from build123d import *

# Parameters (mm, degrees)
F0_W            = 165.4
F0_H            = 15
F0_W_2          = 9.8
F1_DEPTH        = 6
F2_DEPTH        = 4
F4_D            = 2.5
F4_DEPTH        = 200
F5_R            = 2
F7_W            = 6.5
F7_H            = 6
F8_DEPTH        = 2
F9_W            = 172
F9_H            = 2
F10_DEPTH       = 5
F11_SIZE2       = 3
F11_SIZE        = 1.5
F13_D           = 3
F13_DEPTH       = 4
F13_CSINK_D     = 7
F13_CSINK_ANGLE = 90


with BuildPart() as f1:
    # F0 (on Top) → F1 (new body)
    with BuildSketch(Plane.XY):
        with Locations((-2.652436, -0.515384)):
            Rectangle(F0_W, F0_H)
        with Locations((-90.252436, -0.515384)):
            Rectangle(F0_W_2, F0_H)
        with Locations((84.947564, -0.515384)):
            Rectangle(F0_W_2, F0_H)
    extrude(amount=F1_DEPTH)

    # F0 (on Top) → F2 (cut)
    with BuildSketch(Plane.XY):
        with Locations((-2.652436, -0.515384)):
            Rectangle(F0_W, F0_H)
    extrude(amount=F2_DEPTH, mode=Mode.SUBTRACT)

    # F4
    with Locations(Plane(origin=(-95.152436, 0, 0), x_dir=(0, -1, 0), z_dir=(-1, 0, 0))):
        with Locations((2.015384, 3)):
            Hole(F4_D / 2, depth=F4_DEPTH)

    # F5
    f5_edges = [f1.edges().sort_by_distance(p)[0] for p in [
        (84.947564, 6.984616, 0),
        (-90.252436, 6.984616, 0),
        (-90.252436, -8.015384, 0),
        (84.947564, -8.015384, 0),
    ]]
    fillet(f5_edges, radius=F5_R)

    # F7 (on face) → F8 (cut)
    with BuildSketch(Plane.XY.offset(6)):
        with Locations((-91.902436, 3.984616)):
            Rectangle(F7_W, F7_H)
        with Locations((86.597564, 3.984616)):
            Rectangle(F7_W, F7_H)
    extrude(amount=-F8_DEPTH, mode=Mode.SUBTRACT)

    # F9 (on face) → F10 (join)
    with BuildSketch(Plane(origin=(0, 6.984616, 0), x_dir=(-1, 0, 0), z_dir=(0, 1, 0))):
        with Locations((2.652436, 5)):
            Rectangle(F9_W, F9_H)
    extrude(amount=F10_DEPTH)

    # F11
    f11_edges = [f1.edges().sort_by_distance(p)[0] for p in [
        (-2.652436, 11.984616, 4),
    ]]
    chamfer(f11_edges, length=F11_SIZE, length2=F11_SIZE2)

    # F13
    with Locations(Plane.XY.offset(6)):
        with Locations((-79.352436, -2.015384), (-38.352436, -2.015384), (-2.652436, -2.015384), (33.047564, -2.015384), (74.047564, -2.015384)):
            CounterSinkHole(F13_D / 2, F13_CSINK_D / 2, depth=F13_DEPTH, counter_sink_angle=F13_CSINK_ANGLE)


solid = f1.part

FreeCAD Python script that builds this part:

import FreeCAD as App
import Part
import Sketcher
from FreeCAD import Vector
Q = App.Units.Quantity


def edges_at(feature, points):
    """Names of the edges that pass closest to the given points."""
    edges = feature.Shape.Edges
    near = lambda p: min(range(len(edges)), key=lambda i: edges[i].distToShape(Part.Vertex(*p))[0])
    return sorted({f"Edge{near(p) + 1}" for p in points})


def add_polygon(sketch, points):
    """Adds a closed chain of lines whose ends are joined by coincident constraints."""
    first, n = sketch.GeometryCount, len(points)
    for a, b in zip(points, points[1:] + points[:1]):
        sketch.addGeometry(Part.LineSegment(App.Vector(*a, 0), App.Vector(*b, 0)), False)
    for i in range(n):
        sketch.addConstraint(Sketcher.Constraint("Coincident", first + i, 2, first + (i + 1) % n, 1))

doc = App.newDocument("Part")
body = doc.addObject("PartDesign::Body", "Body")

sketch1 = doc.addObject("Sketcher::SketchObject", "Sketch")
body.addObject(sketch1)
sketch1.AttachmentSupport = (doc.XY_Plane, [""])
sketch1.MapMode = "FlatFace"
add_polygon(sketch1, [(-95, 7), (-95, -8), (90, -8), (90, 7)])
sketch1.addConstraint(Sketcher.Constraint("Vertical", 0))
sketch1.addConstraint(Sketcher.Constraint("Horizontal", 1))
sketch1.addConstraint(Sketcher.Constraint("Vertical", 2))
sketch1.addConstraint(Sketcher.Constraint("Horizontal", 3))
sketch1.addConstraint(Sketcher.Constraint("DistanceX", 1, 1, 1, 2, Q("185 mm")))
sketch1.addConstraint(Sketcher.Constraint("DistanceY", 0, 2, 0, 1, Q("15 mm")))
sketch1.addConstraint(Sketcher.Constraint("DistanceX", 0, 2, -1, 1, Q("95.152436 mm")))
sketch1.addConstraint(Sketcher.Constraint("DistanceY", 0, 2, -1, 1, Q("8.015384 mm")))
pad1 = doc.addObject("PartDesign::Pad", "Pad")
body.addObject(pad1)
pad1.Profile = sketch1
pad1.Length = 6

sketch2 = doc.addObject("Sketcher::SketchObject", "Sketch001")
body.addObject(sketch2)
sketch2.AttachmentSupport = (doc.XY_Plane, [""])
sketch2.MapMode = "FlatFace"
add_polygon(sketch2, [(-85, 7), (-85, -8), (80, -8), (80, 7)])
sketch2.addConstraint(Sketcher.Constraint("Vertical", 0))
sketch2.addConstraint(Sketcher.Constraint("Horizontal", 1))
sketch2.addConstraint(Sketcher.Constraint("Vertical", 2))
sketch2.addConstraint(Sketcher.Constraint("Horizontal", 3))
sketch2.addConstraint(Sketcher.Constraint("DistanceY", 0, 2, 0, 1, Q("15 mm")))
sketch2.addConstraint(Sketcher.Constraint("DistanceX", 1, 1, 1, 2, Q("165.4 mm")))
sketch2.addConstraint(Sketcher.Constraint("DistanceX", 0, 2, -1, 1, Q("85.352436 mm")))
sketch2.addConstraint(Sketcher.Constraint("DistanceY", 0, 2, -1, 1, Q("8.015384 mm")))
pocket1 = doc.addObject("PartDesign::Pocket", "Pocket")
body.addObject(pocket1)
pocket1.Profile = sketch2
pocket1.Length = 4
pocket1.Reversed = True

sketch3 = doc.addObject("Sketcher::SketchObject", "Sketch002")
body.addObject(sketch3)
sketch3.AttachmentSupport = (doc.YZ_Plane, [""])
sketch3.MapMode = "FlatFace"
sketch3.AttachmentOffset = App.Placement(Vector(0, 0, -95.152436), App.Rotation())
sketch3.addGeometry(Part.Circle(Vector(-2, 3, 0), Vector(0, 0, 1), 1.2), False)
sketch3.addConstraint(Sketcher.Constraint("Diameter", 0, Q("2.5 mm")))
sketch3.addConstraint(Sketcher.Constraint("DistanceY", -1, 1, 0, 3, Q("3 mm")))
sketch3.addConstraint(Sketcher.Constraint("DistanceX", 0, 3, -1, 1, Q("2.015384 mm")))
doc.recompute()
hole = doc.addObject("PartDesign::Hole", "Hole")
body.addObject(hole)
hole.Profile = sketch3
hole.ThreadType = "None"
hole.Diameter = 2.5
hole.DepthType = "Dimension"
hole.Depth = 200
hole.DrillPoint = "Flat"
hole.Reversed = True
doc.recompute()

fillet = doc.addObject("PartDesign::Fillet", "Fillet")
body.addObject(fillet)
fillet.Base = (hole, edges_at(hole, [
    (84.948, 6.985, 0),
    (-90.252, 6.985, 0),
    (-90.252, -8.015, 0),
    (84.948, -8.015, 0),
]))
fillet.Radius = 2

sketch4 = doc.addObject("Sketcher::SketchObject", "Sketch003")
body.addObject(sketch4)
sketch4.AttachmentSupport = (doc.XY_Plane, [""])
sketch4.MapMode = "FlatFace"
sketch4.AttachmentOffset = App.Placement(Vector(0, 0, 6), App.Rotation())
add_polygon(sketch4, [(-95, 7), (-95, 1), (-89, 1), (-89, 7)])
add_polygon(sketch4, [(83, 7), (83, 1), (90, 1), (90, 7)])
sketch4.addConstraint(Sketcher.Constraint("Vertical", 0))
sketch4.addConstraint(Sketcher.Constraint("Horizontal", 1))
sketch4.addConstraint(Sketcher.Constraint("Vertical", 2))
sketch4.addConstraint(Sketcher.Constraint("Horizontal", 3))
sketch4.addConstraint(Sketcher.Constraint("Vertical", 4))
sketch4.addConstraint(Sketcher.Constraint("Horizontal", 5))
sketch4.addConstraint(Sketcher.Constraint("Vertical", 6))
sketch4.addConstraint(Sketcher.Constraint("Horizontal", 7))
sketch4.addConstraint(Sketcher.Constraint("Horizontal", 1, 2, 4, 2))
sketch4.addConstraint(Sketcher.Constraint("Horizontal", 3, 2, 6, 2))
sketch4.addConstraint(Sketcher.Constraint("Equal", 3, 5))
sketch4.addConstraint(Sketcher.Constraint("DistanceY", 0, 2, 0, 1, Q("6 mm")))
sketch4.addConstraint(Sketcher.Constraint("DistanceX", 1, 1, 1, 2, Q("6.5 mm")))
sketch4.addConstraint(Sketcher.Constraint("DistanceX", 1, 2, 4, 2, Q("172 mm")))
sketch4.addConstraint(Sketcher.Constraint("DistanceX", 0, 2, -1, 1, Q("95.152436 mm")))
sketch4.addConstraint(Sketcher.Constraint("DistanceY", -1, 1, 0, 2, Q("0.984616 mm")))
pocket2 = doc.addObject("PartDesign::Pocket", "Pocket001")
body.addObject(pocket2)
pocket2.Profile = sketch4
pocket2.Length = 2

sketch5 = doc.addObject("Sketcher::SketchObject", "Sketch004")
body.addObject(sketch5)
sketch5.AttachmentSupport = (doc.XZ_Plane, [""])
sketch5.MapMode = "FlatFace"
sketch5.AttachmentOffset = App.Placement(Vector(0, 0, -6.984616), App.Rotation())
add_polygon(sketch5, [(83.3, 6), (83.3, 4), (-88.7, 4), (-88.7, 6)])
sketch5.addConstraint(Sketcher.Constraint("Vertical", 0))
sketch5.addConstraint(Sketcher.Constraint("Horizontal", 1))
sketch5.addConstraint(Sketcher.Constraint("Vertical", 2))
sketch5.addConstraint(Sketcher.Constraint("Horizontal", 3))
sketch5.addConstraint(Sketcher.Constraint("DistanceX", 1, 2, 1, 1, Q("172 mm")))
sketch5.addConstraint(Sketcher.Constraint("DistanceY", 0, 2, 0, 1, Q("2 mm")))
sketch5.addConstraint(Sketcher.Constraint("DistanceY", -1, 1, 0, 2, Q("4 mm")))
sketch5.addConstraint(Sketcher.Constraint("DistanceX", -1, 1, 0, 2, Q("83.347564 mm")))
pad2 = doc.addObject("PartDesign::Pad", "Pad001")
body.addObject(pad2)
pad2.Profile = sketch5
pad2.Length = 5
pad2.Reversed = True
doc.recompute()

chamfer = doc.addObject("PartDesign::Chamfer", "Chamfer")
body.addObject(chamfer)
chamfer.Base = (pad2, edges_at(pad2, [(-2.652, 11.985, 4)]))
chamfer.ChamferType = "Two distances"
chamfer.Size = 1.5
chamfer.Size2 = 3

sketch6 = doc.addObject("Sketcher::SketchObject", "Sketch005")
body.addObject(sketch6)
sketch6.AttachmentSupport = (doc.XY_Plane, [""])
sketch6.MapMode = "FlatFace"
sketch6.AttachmentOffset = App.Placement(Vector(0, 0, 6), App.Rotation())
sketch6.addGeometry(Part.Circle(Vector(-79.4, -2, 0), Vector(0, 0, 1), 1.5), False)
sketch6.addGeometry(Part.Circle(Vector(-38.4, -2, 0), Vector(0, 0, 1), 1.5), False)
sketch6.addGeometry(Part.Circle(Vector(-2.7, -2, 0), Vector(0, 0, 1), 1.5), False)
sketch6.addGeometry(Part.Circle(Vector(33, -2, 0), Vector(0, 0, 1), 1.5), False)
sketch6.addGeometry(Part.Circle(Vector(74, -2, 0), Vector(0, 0, 1), 1.5), False)
sketch6.addConstraint(Sketcher.Constraint("Equal", 0, 1))
sketch6.addConstraint(Sketcher.Constraint("Equal", 1, 2))
sketch6.addConstraint(Sketcher.Constraint("Equal", 2, 3))
sketch6.addConstraint(Sketcher.Constraint("Equal", 3, 4))
sketch6.addConstraint(Sketcher.Constraint("Horizontal", 0, 3, 1, 3))
sketch6.addConstraint(Sketcher.Constraint("Horizontal", 1, 3, 2, 3))
sketch6.addConstraint(Sketcher.Constraint("Horizontal", 2, 3, 3, 3))
sketch6.addConstraint(Sketcher.Constraint("Horizontal", 3, 3, 4, 3))
sketch6.addConstraint(Sketcher.Constraint("Diameter", 0, Q("3 mm")))
sketch6.addConstraint(Sketcher.Constraint("DistanceX", 0, 3, 1, 3, Q("41 mm")))
sketch6.addConstraint(Sketcher.Constraint("DistanceX", 3, 3, 4, 3, Q("41 mm")))
sketch6.addConstraint(Sketcher.Constraint("DistanceX", 1, 3, 2, 3, Q("35.7 mm")))
sketch6.addConstraint(Sketcher.Constraint("DistanceX", 2, 3, 3, 3, Q("35.7 mm")))
sketch6.addConstraint(Sketcher.Constraint("DistanceX", 0, 3, -1, 1, Q("79.352436 mm")))
sketch6.addConstraint(Sketcher.Constraint("DistanceY", 0, 3, -1, 1, Q("2.015384 mm")))
doc.recompute()
hole2 = doc.addObject("PartDesign::Hole", "Hole001")
body.addObject(hole2)
hole2.Profile = sketch6
hole2.ThreadType = "None"
hole2.Diameter = 3
hole2.DepthType = "Dimension"
hole2.Depth = 4
hole2.DrillPoint = "Flat"
hole2.HoleCutType = "Countersink"
hole2.HoleCutDiameter = 7
hole2.HoleCutCountersinkAngle = 90

doc.recompute()
